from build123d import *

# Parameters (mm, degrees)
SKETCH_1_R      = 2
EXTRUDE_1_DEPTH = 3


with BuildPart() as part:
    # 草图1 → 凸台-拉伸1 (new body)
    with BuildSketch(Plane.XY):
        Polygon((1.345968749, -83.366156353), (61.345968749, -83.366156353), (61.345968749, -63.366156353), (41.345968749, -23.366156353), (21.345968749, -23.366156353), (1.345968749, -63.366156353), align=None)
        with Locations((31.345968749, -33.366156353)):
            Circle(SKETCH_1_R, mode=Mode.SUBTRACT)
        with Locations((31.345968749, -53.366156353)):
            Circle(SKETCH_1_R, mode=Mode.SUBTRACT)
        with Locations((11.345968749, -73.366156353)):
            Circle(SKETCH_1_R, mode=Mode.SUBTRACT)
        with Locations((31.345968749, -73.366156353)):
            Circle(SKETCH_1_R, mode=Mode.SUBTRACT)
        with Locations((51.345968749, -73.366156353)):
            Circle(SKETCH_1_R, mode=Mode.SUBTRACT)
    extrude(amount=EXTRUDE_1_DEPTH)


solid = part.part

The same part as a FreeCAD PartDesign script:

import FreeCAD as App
import Part
import Sketcher

doc = App.newDocument("Part")
body = doc.addObject("PartDesign::Body", "Body")

# Sketch on XY plane
sketch1 = doc.addObject("Sketcher::SketchObject", "Sketch")
body.addObject(sketch1)
sketch1.AttachmentSupport = (doc.XY_Plane, [""])
sketch1.MapMode = "FlatFace"
sketch1.addGeometry([
    Part.LineSegment(App.Vector(1.3, -83.4, 0), App.Vector(61.3, -83.4, 0)),  # 0
    Part.LineSegment(App.Vector(61.3, -83.4, 0), App.Vector(61.3, -63.4, 0)),  # 1
    Part.LineSegment(App.Vector(61.3, -63.4, 0), App.Vector(41.3, -23.4, 0)),  # 2
    Part.LineSegment(App.Vector(41.3, -23.4, 0), App.Vector(21.3, -23.4, 0)),  # 3
    Part.LineSegment(App.Vector(21.3, -23.4, 0), App.Vector(1.3, -63.4, 0)),  # 4
    Part.LineSegment(App.Vector(1.3, -63.4, 0), App.Vector(1.3, -83.4, 0)),  # 5
    Part.Circle(App.Vector(11.3, -73.4, 0), App.Vector(0, 0, 1), 2),  # 6
    Part.Circle(App.Vector(31.3, -73.4, 0), App.Vector(0, 0, 1), 2),  # 7
    Part.Circle(App.Vector(51.3, -73.4, 0), App.Vector(0, 0, 1), 2),  # 8
    Part.Circle(App.Vector(31.3, -53.4, 0), App.Vector(0, 0, 1), 2),  # 9
    Part.Circle(App.Vector(31.3, -33.4, 0), App.Vector(0, 0, 1), 2),  # 10
], False)
sketch1.addConstraint([
    Sketcher.Constraint("Coincident", 0, 2, 1, 1),
    Sketcher.Constraint("Coincident", 1, 2, 2, 1),
    Sketcher.Constraint("Coincident", 2, 2, 3, 1),
    Sketcher.Constraint("Coincident", 3, 2, 4, 1),
    Sketcher.Constraint("Coincident", 4, 2, 5, 1),
    Sketcher.Constraint("Coincident", 5, 2, 0, 1),
    Sketcher.Constraint("Horizontal", 0),
    Sketcher.Constraint("Vertical", 1),
    Sketcher.Constraint("Horizontal", 3),
    Sketcher.Constraint("Vertical", 5),
    Sketcher.Constraint("Equal", 6, 7),
    Sketcher.Constraint("Equal", 7, 8),
    Sketcher.Constraint("Equal", 8, 9),
    Sketcher.Constraint("Equal", 9, 10),
    Sketcher.Constraint("Horizontal", 6, 3, 7, 3),
    Sketcher.Constraint("Horizontal", 7, 3, 8, 3),
    Sketcher.Constraint("Horizontal", 1, 2, 4, 2),
    Sketcher.Constraint("Vertical", 7, 3, 9, 3),
    Sketcher.Constraint("Vertical", 9, 3, 10, 3),
    Sketcher.Constraint("Equal", 3, 1),
    Sketcher.Constraint("Equal", 2, 4),
    Sketcher.Constraint("Diameter", 6, 4.0),
    Sketcher.Constraint("DistanceX", 0, 1, 0, 2, 60.0),
    Sketcher.Constraint("DistanceX", 3, 2, 3, 1, 20.0),
    Sketcher.Constraint("DistanceX", 6, 3, 7, 3, 20.0),
    Sketcher.Constraint("DistanceX", 7, 3, 8, 3, 20.0),
    Sketcher.Constraint("DistanceY", 7, 3, 9, 3, 20.0),
    Sketcher.Constraint("DistanceY", 9, 3, 10, 3, 20.0),
    Sketcher.Constraint("DistanceX", 8, 3, 0, 2, 10.0),
    Sketcher.Constraint("DistanceY", 0, 2, 8, 3, 10.0),
    Sketcher.Constraint("DistanceY", 10, 3, 2, 2, 10.0),
    Sketcher.Constraint("DistanceX", -1, 1, 6, 3, 11.345969),
    Sketcher.Constraint("DistanceY", 6, 3, -1, 1, 73.366156),
])
pad1 = doc.addObject("PartDesign::Pad", "Pad")
body.addObject(pad1)
pad1.Profile = sketch1
pad1.Length = 3

doc.recompute()
